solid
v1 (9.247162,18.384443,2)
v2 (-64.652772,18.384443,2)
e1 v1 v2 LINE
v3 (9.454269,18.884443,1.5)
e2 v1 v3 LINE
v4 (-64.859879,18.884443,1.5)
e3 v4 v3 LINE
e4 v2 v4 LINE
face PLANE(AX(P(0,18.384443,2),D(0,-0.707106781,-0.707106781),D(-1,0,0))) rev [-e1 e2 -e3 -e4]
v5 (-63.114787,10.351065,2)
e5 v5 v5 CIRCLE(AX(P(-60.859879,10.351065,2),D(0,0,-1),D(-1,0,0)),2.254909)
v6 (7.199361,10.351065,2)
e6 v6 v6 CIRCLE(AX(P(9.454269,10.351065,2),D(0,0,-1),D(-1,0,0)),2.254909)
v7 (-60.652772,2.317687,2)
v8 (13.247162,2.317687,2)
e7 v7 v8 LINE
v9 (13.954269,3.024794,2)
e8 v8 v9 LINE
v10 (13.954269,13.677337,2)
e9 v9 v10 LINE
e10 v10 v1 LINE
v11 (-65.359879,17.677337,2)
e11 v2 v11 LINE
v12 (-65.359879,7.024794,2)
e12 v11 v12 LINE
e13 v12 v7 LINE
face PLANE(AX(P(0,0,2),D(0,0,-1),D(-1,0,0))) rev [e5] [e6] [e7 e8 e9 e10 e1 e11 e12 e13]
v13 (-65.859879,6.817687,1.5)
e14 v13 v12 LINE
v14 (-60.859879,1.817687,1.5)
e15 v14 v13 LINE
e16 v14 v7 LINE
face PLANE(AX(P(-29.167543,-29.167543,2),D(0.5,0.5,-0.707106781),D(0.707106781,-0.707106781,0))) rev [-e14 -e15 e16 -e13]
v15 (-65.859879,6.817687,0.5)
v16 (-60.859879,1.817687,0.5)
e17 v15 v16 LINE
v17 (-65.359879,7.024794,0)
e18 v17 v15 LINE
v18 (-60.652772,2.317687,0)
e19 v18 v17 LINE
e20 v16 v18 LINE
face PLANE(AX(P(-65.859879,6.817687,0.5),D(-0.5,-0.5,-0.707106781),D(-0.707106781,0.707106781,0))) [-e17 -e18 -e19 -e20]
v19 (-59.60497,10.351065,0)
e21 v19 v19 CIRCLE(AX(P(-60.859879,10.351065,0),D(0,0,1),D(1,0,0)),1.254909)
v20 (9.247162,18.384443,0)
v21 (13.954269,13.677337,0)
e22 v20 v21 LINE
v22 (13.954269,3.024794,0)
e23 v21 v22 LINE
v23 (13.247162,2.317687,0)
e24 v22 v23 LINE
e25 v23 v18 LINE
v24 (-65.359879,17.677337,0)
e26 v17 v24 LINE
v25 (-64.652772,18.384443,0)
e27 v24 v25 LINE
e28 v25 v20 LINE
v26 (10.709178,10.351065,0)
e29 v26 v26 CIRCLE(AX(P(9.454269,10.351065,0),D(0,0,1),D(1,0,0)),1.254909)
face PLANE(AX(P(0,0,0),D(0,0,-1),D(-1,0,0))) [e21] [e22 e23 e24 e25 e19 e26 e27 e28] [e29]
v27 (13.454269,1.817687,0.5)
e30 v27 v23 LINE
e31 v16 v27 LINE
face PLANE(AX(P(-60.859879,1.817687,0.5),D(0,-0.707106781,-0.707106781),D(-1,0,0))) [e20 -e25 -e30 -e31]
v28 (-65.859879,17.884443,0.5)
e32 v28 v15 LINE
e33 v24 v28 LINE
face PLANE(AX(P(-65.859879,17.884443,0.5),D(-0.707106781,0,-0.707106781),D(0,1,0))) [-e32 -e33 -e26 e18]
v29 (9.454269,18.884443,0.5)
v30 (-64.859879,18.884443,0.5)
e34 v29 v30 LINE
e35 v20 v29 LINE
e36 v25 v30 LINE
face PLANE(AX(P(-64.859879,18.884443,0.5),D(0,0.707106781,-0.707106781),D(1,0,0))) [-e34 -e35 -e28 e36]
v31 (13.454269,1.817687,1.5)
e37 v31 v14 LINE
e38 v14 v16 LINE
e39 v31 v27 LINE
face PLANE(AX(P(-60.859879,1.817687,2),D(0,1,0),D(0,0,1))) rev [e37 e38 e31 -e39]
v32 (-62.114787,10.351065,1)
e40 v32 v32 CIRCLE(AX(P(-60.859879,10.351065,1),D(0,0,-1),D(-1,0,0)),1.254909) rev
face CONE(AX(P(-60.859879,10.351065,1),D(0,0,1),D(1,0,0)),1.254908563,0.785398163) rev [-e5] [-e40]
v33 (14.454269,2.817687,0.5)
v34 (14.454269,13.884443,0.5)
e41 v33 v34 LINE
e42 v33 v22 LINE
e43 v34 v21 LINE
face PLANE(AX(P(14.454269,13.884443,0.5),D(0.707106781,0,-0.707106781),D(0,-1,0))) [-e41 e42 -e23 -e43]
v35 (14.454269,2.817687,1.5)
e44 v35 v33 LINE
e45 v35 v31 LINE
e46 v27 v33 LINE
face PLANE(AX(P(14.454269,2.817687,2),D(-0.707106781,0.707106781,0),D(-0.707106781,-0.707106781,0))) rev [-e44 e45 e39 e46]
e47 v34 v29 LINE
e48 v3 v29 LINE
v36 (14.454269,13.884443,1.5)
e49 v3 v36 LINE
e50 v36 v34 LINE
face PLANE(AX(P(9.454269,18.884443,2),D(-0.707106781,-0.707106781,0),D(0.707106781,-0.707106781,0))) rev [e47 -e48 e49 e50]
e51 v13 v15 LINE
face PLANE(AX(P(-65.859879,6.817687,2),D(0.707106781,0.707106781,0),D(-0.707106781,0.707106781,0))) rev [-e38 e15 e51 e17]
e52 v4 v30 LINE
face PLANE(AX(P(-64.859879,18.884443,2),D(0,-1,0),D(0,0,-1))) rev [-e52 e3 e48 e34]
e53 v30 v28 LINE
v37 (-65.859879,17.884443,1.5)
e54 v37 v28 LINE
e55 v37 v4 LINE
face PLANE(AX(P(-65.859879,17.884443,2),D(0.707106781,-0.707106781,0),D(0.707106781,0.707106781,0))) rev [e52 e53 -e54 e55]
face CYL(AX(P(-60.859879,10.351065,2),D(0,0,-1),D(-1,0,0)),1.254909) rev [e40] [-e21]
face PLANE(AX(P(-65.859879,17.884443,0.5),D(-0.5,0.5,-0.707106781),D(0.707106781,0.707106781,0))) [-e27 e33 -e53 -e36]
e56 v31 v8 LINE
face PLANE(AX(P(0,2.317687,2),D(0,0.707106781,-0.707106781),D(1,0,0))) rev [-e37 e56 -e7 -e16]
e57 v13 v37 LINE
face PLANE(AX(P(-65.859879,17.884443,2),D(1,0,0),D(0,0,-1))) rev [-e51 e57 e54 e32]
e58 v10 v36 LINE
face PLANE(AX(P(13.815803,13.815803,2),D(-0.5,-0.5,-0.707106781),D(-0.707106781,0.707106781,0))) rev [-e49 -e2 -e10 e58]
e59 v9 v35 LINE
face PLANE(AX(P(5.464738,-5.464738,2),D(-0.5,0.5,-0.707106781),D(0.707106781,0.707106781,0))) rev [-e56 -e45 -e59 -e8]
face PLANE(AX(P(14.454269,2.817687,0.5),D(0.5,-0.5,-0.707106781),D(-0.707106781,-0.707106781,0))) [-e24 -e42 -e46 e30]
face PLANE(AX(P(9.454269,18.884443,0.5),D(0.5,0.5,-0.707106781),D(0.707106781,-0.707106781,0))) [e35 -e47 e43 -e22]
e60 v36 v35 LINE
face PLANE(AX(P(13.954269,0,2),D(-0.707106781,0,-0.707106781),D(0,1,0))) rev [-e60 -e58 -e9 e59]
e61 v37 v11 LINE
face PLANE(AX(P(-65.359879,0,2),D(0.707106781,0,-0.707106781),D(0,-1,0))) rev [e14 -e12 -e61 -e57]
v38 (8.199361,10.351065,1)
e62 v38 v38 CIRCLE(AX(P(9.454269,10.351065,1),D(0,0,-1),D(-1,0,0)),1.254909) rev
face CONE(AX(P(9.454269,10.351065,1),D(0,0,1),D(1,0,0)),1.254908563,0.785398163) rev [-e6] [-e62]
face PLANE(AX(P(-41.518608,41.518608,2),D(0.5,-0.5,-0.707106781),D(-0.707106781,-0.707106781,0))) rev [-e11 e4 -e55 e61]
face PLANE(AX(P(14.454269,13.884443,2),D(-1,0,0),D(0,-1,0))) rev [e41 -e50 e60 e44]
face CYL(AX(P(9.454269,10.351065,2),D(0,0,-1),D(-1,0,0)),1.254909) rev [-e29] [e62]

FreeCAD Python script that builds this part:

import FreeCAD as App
import Part
import Sketcher
from FreeCAD import Vector
Q = App.Units.Quantity


def edges_at(feature, points):
    """Names of the edges that pass closest to the given points."""
    edges = feature.Shape.Edges
    near = lambda p: min(range(len(edges)), key=lambda i: edges[i].distToShape(Part.Vertex(*p))[0])
    return sorted({f"Edge{near(p) + 1}" for p in points})

doc = App.newDocument("Part")
body = doc.addObject("PartDesign::Body", "Body")

# Sketch on XY plane
sketch1 = body.newObject("Sketcher::SketchObject", "Sketch")
sketch1.AttachmentSupport = (doc.getObject("XY_Plane"), [""])
sketch1.MapMode = "FlatFace"
sketch1.addGeometry([
    Part.LineSegment(Vector(-64.859879, 18.884443, 0), Vector(-65.859879, 17.884443, 0)),  # 0
    Part.LineSegment(Vector(-65.859879, 17.884443, 0), Vector(-65.859879, 6.817687, 0)),  # 1
    Part.LineSegment(Vector(-65.859879, 6.817687, 0), Vector(-60.859879, 1.817687, 0)),  # 2
    Part.LineSegment(Vector(-60.859879, 1.817687, 0), Vector(13.454269, 1.817687, 0)),  # 3
    Part.LineSegment(Vector(13.454269, 1.817687, 0), Vector(14.454269, 2.817687, 0)),  # 4
    Part.LineSegment(Vector(14.454269, 2.817687, 0), Vector(14.454269, 13.884443, 0)),  # 5
    Part.LineSegment(Vector(14.454269, 13.884443, 0), Vector(9.454269, 18.884443, 0)),  # 6
    Part.LineSegment(Vector(9.454269, 18.884443, 0), Vector(-64.859879, 18.884443, 0)),  # 7
    Part.Circle(Vector(9.454269, 10.351065, 0), Vector(0, 0, 1), 1.254909),  # 8
    Part.Circle(Vector(-60.859879, 10.351065, 0), Vector(0, 0, 1), 1.254909),  # 9
], False)
sketch1.addConstraint([
    Sketcher.Constraint("Coincident", 0, 2, 1, 1),
    Sketcher.Constraint("Coincident", 1, 2, 2, 1),
    Sketcher.Constraint("Coincident", 2, 2, 3, 1),
    Sketcher.Constraint("Coincident", 3, 2, 4, 1),
    Sketcher.Constraint("Coincident", 4, 2, 5, 1),
    Sketcher.Constraint("Coincident", 5, 2, 6, 1),
    Sketcher.Constraint("Coincident", 6, 2, 7, 1),
    Sketcher.Constraint("Coincident", 7, 2, 0, 1),
    Sketcher.Constraint("Vertical", 1),
    Sketcher.Constraint("Horizontal", 3),
    Sketcher.Constraint("Vertical", 5),
    Sketcher.Constraint("Horizontal", 7),
    Sketcher.Constraint("Equal", 8, 9),
    Sketcher.Constraint("Perpendicular", 0, 2),
    Sketcher.Constraint("Perpendicular", 2, 4),
    Sketcher.Constraint("Perpendicular", 4, 6),
    Sketcher.Constraint("Horizontal", 8, 3, 9, 3),
    Sketcher.Constraint("Vertical", 9, 3, 2, 2),
    Sketcher.Constraint("Vertical", 8, 3, 6, 2),
    Sketcher.Constraint("Equal", 3, 7),
    Sketcher.Constraint("Equal", 1, 5),
    Sketcher.Constraint("Angle", 0, Q("-135 deg")),
    Sketcher.Constraint("DistanceX", 0, 2, 9, 3, Q("5 mm")),
    Sketcher.Constraint("DistanceX", 8, 3, 3, 2, Q("4 mm")),
    Sketcher.Constraint("Diameter", 8, Q("2.509817 mm")),
    Sketcher.Constraint("DistanceX", 3, 1, 3, 2, Q("74.314148 mm")),
    Sketcher.Constraint("DistanceY", 1, 2, 1, 1, Q("11.066756 mm")),
    Sketcher.Constraint("DistanceX", -1, 1, 8, 3, Q("9.454269 mm")),
    Sketcher.Constraint("DistanceY", 9, 3, 0, 2, Q("7.533378 mm")),
    Sketcher.Constraint("DistanceY", -1, 1, 8, 3, Q("10.351065 mm")),
])
pad1 = body.newObject("PartDesign::Pad", "Pad")
pad1.Profile = sketch1
pad1.Length = 2
doc.recompute()

chamfer = body.newObject("PartDesign::Chamfer", "Chamfer")
chamfer.Base = (pad1, edges_at(pad1, [(-62.115, 10.351, 2), (8.199, 10.351, 2)]))
chamfer.Size = 1
doc.recompute()

chamfer2 = body.newObject("PartDesign::Chamfer", "Chamfer001")
chamfer2.Base = (chamfer, edges_at(chamfer, [
    (-65.86, 12.351, 2),
    (-63.36, 4.318, 2),
    (-23.703, 1.818, 2),
    (13.954, 2.318, 2),
    (14.454, 8.351, 2),
    (11.954, 16.384, 2),
    (-27.703, 18.884, 2),
    (-65.36, 18.384, 2),
]))
chamfer2.Size = 0.5
doc.recompute()

chamfer3 = body.newObject("PartDesign::Chamfer", "Chamfer002")
chamfer3.Base = (chamfer2, edges_at(chamfer2, [
    (-65.36, 18.384, 0),
    (-27.703, 18.884, 0),
    (11.954, 16.384, 0),
    (14.454, 8.351, 0),
    (13.954, 2.318, 0),
    (-23.703, 1.818, 0),
    (-63.36, 4.318, 0),
    (-65.86, 12.351, 0),
]))
chamfer3.Size = 0.5

doc.recompute()
